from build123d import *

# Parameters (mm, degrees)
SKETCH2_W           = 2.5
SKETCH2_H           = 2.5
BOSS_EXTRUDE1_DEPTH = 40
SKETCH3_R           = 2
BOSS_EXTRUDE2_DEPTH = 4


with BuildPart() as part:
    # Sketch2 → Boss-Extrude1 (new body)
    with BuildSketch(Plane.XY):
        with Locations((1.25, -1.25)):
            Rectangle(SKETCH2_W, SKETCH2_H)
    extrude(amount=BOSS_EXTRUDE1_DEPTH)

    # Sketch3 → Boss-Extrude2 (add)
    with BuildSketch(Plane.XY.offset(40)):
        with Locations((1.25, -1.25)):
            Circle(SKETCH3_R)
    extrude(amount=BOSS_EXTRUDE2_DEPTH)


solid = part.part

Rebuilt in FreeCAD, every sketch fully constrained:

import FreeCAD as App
import Part
import Sketcher

V = App.Vector


def add_polygon(sketch, points):
    """Adds a closed chain of lines whose ends are joined by coincident constraints."""
    first, n = sketch.GeometryCount, len(points)
    for a, b in zip(points, points[1:] + points[:1]):
        sketch.addGeometry(Part.LineSegment(App.Vector(*a, 0), App.Vector(*b, 0)), False)
    for i in range(n):
        sketch.addConstraint(Sketcher.Constraint("Coincident", first + i, 2, first + (i + 1) % n, 1))

doc = App.newDocument("Part")
body = doc.addObject("PartDesign::Body", "Body")

# Sketch on XY plane
sketch1 = body.newObject("Sketcher::SketchObject", "Sketch")
sketch1.AttachmentSupport = (doc.getObject("XY_Plane"), [""])
sketch1.MapMode = "FlatFace"
add_polygon(sketch1, [(0, 0), (0, -2.5), (2.5, -2.5), (2.5, 0)])  # lines 0-3
sketch1.addConstraint([
    Sketcher.Constraint("Vertical", 0),
    Sketcher.Constraint("Horizontal", 1),
    Sketcher.Constraint("Vertical", 2),
    Sketcher.Constraint("Horizontal", 3),
    Sketcher.Constraint("Coincident", 3, 2, -1, 1),
    Sketcher.Constraint("Equal", 3, 0),
    Sketcher.Constraint("DistanceX", 1, 1, 1, 2, 2.5),
])
pad1 = body.newObject("PartDesign::Pad", "Pad")
pad1.Profile = sketch1
pad1.Length = 40

# Sketch on XY plane
sketch2 = body.newObject("Sketcher::SketchObject", "Sketch001")
sketch2.AttachmentSupport = (doc.getObject("XY_Plane"), [""])
sketch2.MapMode = "FlatFace"
sketch2.AttachmentOffset = App.Placement(V(0, 0, 40), App.Rotation())
sketch2.addGeometry(Part.Circle(V(1.2, -1.2, 0), V(0, 0, 1), 2), False)
sketch2.addConstraint([
    Sketcher.Constraint("Diameter", 0, 4.0),
    Sketcher.Constraint("DistanceX", -1, 1, 0, 3, 1.25),
    Sketcher.Constraint("DistanceY", 0, 3, -1, 1, 1.25),
])
pad2 = body.newObject("PartDesign::Pad", "Pad001")
pad2.Profile = sketch2
pad2.Length = 4

doc.recompute()
